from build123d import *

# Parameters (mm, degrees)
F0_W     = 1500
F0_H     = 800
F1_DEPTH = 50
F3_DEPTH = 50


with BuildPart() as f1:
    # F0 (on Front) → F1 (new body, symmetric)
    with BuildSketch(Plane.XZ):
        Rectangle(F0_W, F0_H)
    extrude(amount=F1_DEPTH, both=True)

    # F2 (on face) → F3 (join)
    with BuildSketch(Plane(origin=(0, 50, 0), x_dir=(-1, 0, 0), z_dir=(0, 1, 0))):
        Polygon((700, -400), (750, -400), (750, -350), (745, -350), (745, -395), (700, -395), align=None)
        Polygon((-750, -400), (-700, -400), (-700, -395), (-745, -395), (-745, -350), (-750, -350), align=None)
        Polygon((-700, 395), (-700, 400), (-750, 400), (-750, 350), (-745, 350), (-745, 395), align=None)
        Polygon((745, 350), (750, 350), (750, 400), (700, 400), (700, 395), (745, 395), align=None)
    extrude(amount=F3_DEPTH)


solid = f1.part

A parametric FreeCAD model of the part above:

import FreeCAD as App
import Part
import Sketcher

doc = App.newDocument("Part")
body = doc.addObject("PartDesign::Body", "Body")

# Sketch on XZ plane
sketch1 = body.newObject("Sketcher::SketchObject", "Sketch")
sketch1.AttachmentSupport = (doc.getObject("XZ_Plane"), [""])
sketch1.MapMode = "FlatFace"
sketch1.addGeometry([
    Part.LineSegment(App.Vector(-750, 400, 0), App.Vector(-750, -400, 0)),
    Part.LineSegment(App.Vector(-750, -400, 0), App.Vector(750, -400, 0)),
    Part.LineSegment(App.Vector(750, -400, 0), App.Vector(750, 400, 0)),
    Part.LineSegment(App.Vector(750, 400, 0), App.Vector(-750, 400, 0)),
], False)
sketch1.addConstraint([
    Sketcher.Constraint("Coincident", 0, 2, 1, 1),
    Sketcher.Constraint("Coincident", 1, 2, 2, 1),
    Sketcher.Constraint("Coincident", 2, 2, 3, 1),
    Sketcher.Constraint("Coincident", 3, 2, 0, 1),
    Sketcher.Constraint("Vertical", 0),
    Sketcher.Constraint("Horizontal", 1),
    Sketcher.Constraint("Vertical", 2),
    Sketcher.Constraint("Horizontal", 3),
    Sketcher.Constraint("Symmetric", 0, 2, 2, 2, -1, 1),
    Sketcher.Constraint("DistanceX", 1, 1, 1, 2, 1500.0),
    Sketcher.Constraint("DistanceY", 0, 2, 0, 1, 800.0),
])
pad1 = body.newObject("PartDesign::Pad", "Pad")
pad1.Profile = sketch1
pad1.Length = 100
pad1.Midplane = True

# Sketch on XZ plane
sketch2 = body.newObject("Sketcher::SketchObject", "Sketch001")
sketch2.AttachmentSupport = (doc.getObject("XZ_Plane"), [""])
sketch2.MapMode = "FlatFace"
sketch2.AttachmentOffset = App.Placement(App.Vector(0, 0, -50), App.Rotation())
sketch2.addGeometry([
    Part.LineSegment(App.Vector(-700, -400, 0), App.Vector(-750, -400, 0)),  # 0
    Part.LineSegment(App.Vector(-750, -400, 0), App.Vector(-750, -350, 0)),  # 1
    Part.LineSegment(App.Vector(-750, -350, 0), App.Vector(-745, -350, 0)),  # 2
    Part.LineSegment(App.Vector(-745, -350, 0), App.Vector(-745, -395, 0)),  # 3
    Part.LineSegment(App.Vector(-745, -395, 0), App.Vector(-700, -395, 0)),  # 4
    Part.LineSegment(App.Vector(-700, -395, 0), App.Vector(-700, -400, 0)),  # 5
    Part.LineSegment(App.Vector(750, -400, 0), App.Vector(700, -400, 0)),  # 6
    Part.LineSegment(App.Vector(700, -400, 0), App.Vector(700, -395, 0)),  # 7
    Part.LineSegment(App.Vector(700, -395, 0), App.Vector(745, -395, 0)),  # 8
    Part.LineSegment(App.Vector(745, -395, 0), App.Vector(745, -350, 0)),  # 9
    Part.LineSegment(App.Vector(745, -350, 0), App.Vector(750, -350, 0)),  # 10
    Part.LineSegment(App.Vector(750, -350, 0), App.Vector(750, -400, 0)),  # 11
    Part.LineSegment(App.Vector(700, 395, 0), App.Vector(700, 400, 0)),  # 12
    Part.LineSegment(App.Vector(700, 400, 0), App.Vector(750, 400, 0)),  # 13
    Part.LineSegment(App.Vector(750, 400, 0), App.Vector(750, 350, 0)),  # 14
    Part.LineSegment(App.Vector(750, 350, 0), App.Vector(745, 350, 0)),  # 15
    Part.LineSegment(App.Vector(745, 350, 0), App.Vector(745, 395, 0)),  # 16
    Part.LineSegment(App.Vector(745, 395, 0), App.Vector(700, 395, 0)),  # 17
    Part.LineSegment(App.Vector(-745, 350, 0), App.Vector(-750, 350, 0)),  # 18
    Part.LineSegment(App.Vector(-750, 350, 0), App.Vector(-750, 400, 0)),  # 19
    Part.LineSegment(App.Vector(-750, 400, 0), App.Vector(-700, 400, 0)),  # 20
    Part.LineSegment(App.Vector(-700, 400, 0), App.Vector(-700, 395, 0)),  # 21
    Part.LineSegment(App.Vector(-700, 395, 0), App.Vector(-745, 395, 0)),  # 22
    Part.LineSegment(App.Vector(-745, 395, 0), App.Vector(-745, 350, 0)),  # 23
], False)
sketch2.addConstraint([
    Sketcher.Constraint("Coincident", 0, 2, 1, 1),
    Sketcher.Constraint("Coincident", 1, 2, 2, 1),
    Sketcher.Constraint("Coincident", 2, 2, 3, 1),
    Sketcher.Constraint("Coincident", 3, 2, 4, 1),
    Sketcher.Constraint("Coincident", 4, 2, 5, 1),
    Sketcher.Constraint("Coincident", 5, 2, 0, 1),
    Sketcher.Constraint("Coincident", 6, 2, 7, 1),
    Sketcher.Constraint("Coincident", 7, 2, 8, 1),
    Sketcher.Constraint("Coincident", 8, 2, 9, 1),
    Sketcher.Constraint("Coincident", 9, 2, 10, 1),
    Sketcher.Constraint("Coincident", 10, 2, 11, 1),
    Sketcher.Constraint("Coincident", 11, 2, 6, 1),
    Sketcher.Constraint("Coincident", 12, 2, 13, 1),
    Sketcher.Constraint("Coincident", 13, 2, 14, 1),
    Sketcher.Constraint("Coincident", 14, 2, 15, 1),
    Sketcher.Constraint("Coincident", 15, 2, 16, 1),
    Sketcher.Constraint("Coincident", 16, 2, 17, 1),
    Sketcher.Constraint("Coincident", 17, 2, 12, 1),
    Sketcher.Constraint("Coincident", 18, 2, 19, 1),
    Sketcher.Constraint("Coincident", 19, 2, 20, 1),
    Sketcher.Constraint("Coincident", 20, 2, 21, 1),
    Sketcher.Constraint("Coincident", 21, 2, 22, 1),
    Sketcher.Constraint("Coincident", 22, 2, 23, 1),
    Sketcher.Constraint("Coincident", 23, 2, 18, 1),
    Sketcher.Constraint("Horizontal", 0),
    Sketcher.Constraint("Vertical", 1),
    Sketcher.Constraint("Horizontal", 2),
    Sketcher.Constraint("Vertical", 3),
    Sketcher.Constraint("Horizontal", 4),
    Sketcher.Constraint("Vertical", 5),
    Sketcher.Constraint("Horizontal", 6),
    Sketcher.Constraint("Vertical", 7),
    Sketcher.Constraint("Horizontal", 8),
    Sketcher.Constraint("Vertical", 9),
    Sketcher.Constraint("Horizontal", 10),
    Sketcher.Constraint("Vertical", 11),
    Sketcher.Constraint("Vertical", 12),
    Sketcher.Constraint("Horizontal", 13),
    Sketcher.Constraint("Vertical", 14),
    Sketcher.Constraint("Horizontal", 15),
    Sketcher.Constraint("Vertical", 16),
    Sketcher.Constraint("Horizontal", 17),
    Sketcher.Constraint("Horizontal", 18),
    Sketcher.Constraint("Vertical", 19),
    Sketcher.Constraint("Horizontal", 20),
    Sketcher.Constraint("Vertical", 21),
    Sketcher.Constraint("Horizontal", 22),
    Sketcher.Constraint("Vertical", 23),
    Sketcher.Constraint("Symmetric", 5, 2, 12, 2, -1, 1),
    Sketcher.Constraint("Symmetric", 1, 2, 14, 2, -1, 1),
    Sketcher.Constraint("Symmetric", 3, 2, 16, 2, -1, 1),
    Sketcher.Constraint("Symmetric", 10, 2, 18, 2, -1, 1),
    Sketcher.Constraint("Symmetric", 6, 2, 20, 2, -1, 1),
    Sketcher.Constraint("Symmetric", 8, 2, 22, 2, -1, 1),
    Sketcher.Constraint("Symmetric", 5, 2, 6, 2, -2),
    Sketcher.Constraint("Symmetric", 3, 2, 8, 2, -2),
    Sketcher.Constraint("Symmetric", 1, 2, 10, 2, -2),
    Sketcher.Constraint("Equal", 20, 1),
    Sketcher.Constraint("Equal", 22, 3),
    Sketcher.Constraint("DistanceX", 0, 2, 0, 1, 50.0),
    Sketcher.Constraint("DistanceX", 2, 1, 2, 2, 5.0),
    Sketcher.Constraint("DistanceX", 0, 2, -1, 1, 750.0),
    Sketcher.Constraint("DistanceY", 0, 2, -1, 1, 400.0),
])
pad2 = body.newObject("PartDesign::Pad", "Pad001")
pad2.Profile = sketch2
pad2.Length = 50
pad2.Reversed = True

doc.recompute()
